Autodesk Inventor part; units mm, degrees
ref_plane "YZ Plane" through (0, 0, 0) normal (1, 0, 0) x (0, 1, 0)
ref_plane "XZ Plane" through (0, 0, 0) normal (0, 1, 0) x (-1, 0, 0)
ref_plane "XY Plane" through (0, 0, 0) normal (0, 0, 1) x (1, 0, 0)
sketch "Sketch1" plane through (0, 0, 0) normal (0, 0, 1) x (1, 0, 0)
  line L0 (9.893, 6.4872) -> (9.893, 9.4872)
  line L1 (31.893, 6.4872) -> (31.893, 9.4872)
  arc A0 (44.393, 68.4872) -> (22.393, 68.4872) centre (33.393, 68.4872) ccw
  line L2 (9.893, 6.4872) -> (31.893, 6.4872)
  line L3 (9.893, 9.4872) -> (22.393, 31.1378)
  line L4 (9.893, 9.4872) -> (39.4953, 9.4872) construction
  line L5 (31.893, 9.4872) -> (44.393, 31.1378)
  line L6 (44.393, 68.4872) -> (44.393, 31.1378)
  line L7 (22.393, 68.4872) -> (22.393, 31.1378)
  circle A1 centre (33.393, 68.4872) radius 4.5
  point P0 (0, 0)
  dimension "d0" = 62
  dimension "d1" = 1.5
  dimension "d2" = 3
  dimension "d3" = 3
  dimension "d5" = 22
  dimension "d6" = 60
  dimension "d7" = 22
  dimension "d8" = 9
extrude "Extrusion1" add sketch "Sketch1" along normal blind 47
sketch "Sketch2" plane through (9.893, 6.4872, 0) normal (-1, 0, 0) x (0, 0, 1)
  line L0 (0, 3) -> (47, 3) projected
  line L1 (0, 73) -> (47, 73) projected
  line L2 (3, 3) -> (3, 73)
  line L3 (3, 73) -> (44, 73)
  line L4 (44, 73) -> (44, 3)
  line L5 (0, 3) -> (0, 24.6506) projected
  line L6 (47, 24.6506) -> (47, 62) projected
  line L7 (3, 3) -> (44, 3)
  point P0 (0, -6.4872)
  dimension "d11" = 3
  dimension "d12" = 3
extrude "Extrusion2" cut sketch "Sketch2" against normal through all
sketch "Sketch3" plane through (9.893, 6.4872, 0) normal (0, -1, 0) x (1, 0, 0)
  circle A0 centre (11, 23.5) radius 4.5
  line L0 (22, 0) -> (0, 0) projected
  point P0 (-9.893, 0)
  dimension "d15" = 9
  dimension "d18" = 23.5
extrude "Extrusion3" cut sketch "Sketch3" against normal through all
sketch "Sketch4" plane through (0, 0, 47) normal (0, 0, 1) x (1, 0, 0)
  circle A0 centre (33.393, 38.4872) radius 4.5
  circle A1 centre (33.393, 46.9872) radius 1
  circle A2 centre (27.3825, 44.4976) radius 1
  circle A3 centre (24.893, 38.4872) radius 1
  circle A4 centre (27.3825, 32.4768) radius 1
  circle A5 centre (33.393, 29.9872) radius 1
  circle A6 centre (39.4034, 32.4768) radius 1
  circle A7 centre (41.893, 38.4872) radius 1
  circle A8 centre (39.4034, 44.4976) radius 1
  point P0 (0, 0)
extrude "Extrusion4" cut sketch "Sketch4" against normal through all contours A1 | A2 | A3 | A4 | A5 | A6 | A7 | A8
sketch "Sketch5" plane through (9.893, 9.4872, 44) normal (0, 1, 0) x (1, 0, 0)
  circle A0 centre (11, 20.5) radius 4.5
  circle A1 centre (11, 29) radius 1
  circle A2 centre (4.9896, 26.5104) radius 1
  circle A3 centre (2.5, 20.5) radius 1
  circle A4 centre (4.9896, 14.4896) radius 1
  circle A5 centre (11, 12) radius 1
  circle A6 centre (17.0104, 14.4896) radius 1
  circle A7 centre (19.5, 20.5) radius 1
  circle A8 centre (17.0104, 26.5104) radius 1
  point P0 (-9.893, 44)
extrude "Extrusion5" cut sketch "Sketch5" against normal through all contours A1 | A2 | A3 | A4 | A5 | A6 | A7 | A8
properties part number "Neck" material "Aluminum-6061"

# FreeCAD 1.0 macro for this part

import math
import FreeCAD as App
import Part
import Sketcher
Q = App.Units.Quantity

doc = App.newDocument("Part")
params = doc.addObject("Spreadsheet::Sheet", "Params")
for row, (alias, value) in enumerate([
    ("sketch1_diameter", "9 mm"),
    ("sketch1_radius", "11 mm"),
    ("sketch1_height", "3 mm"),
    ("pad1_length", "47 mm"),
    ("sketch2_width", "70 mm"),
    ("sketch2_height", "41 mm"),
    ("sketch3_diameter", "9 mm"),
    ("sketch4_diameter", "2 mm"),
    ("sketch5_diameter", "2 mm"),
], start=1):
    params.set(f"A{row}", alias)
    params.set(f"B{row}", "=" + value)
    params.setAlias(f"B{row}", alias)

body = doc.addObject("PartDesign::Body", "Body")

sketch1 = body.newObject("Sketcher::SketchObject", "Sketch")
sketch1.AttachmentSupport = (doc.getObject("XY_Plane"), [""])
sketch1.MapMode = "FlatFace"
sketch1.addGeometry(Part.LineSegment(App.Vector(9.9, 9.5, 0), App.Vector(9.9, 6.5, 0)), False)
sketch1.addGeometry(Part.LineSegment(App.Vector(9.9, 6.5, 0), App.Vector(31.9, 6.5, 0)), False)
sketch1.addGeometry(Part.LineSegment(App.Vector(31.9, 6.5, 0), App.Vector(31.9, 9.5, 0)), False)
sketch1.addGeometry(Part.LineSegment(App.Vector(31.9, 9.5, 0), App.Vector(44.4, 31.1, 0)), False)
sketch1.addGeometry(Part.LineSegment(App.Vector(44.4, 31.1, 0), App.Vector(44.4, 68.5, 0)), False)
sketch1.addGeometry(Part.ArcOfCircle(Part.Circle(App.Vector(33.4, 68.5, 0), App.Vector(0, 0, 1), 11), math.radians(0), math.radians(180)), False)
sketch1.addGeometry(Part.LineSegment(App.Vector(22.4, 68.5, 0), App.Vector(22.4, 31.1, 0)), False)
sketch1.addGeometry(Part.LineSegment(App.Vector(22.4, 31.1, 0), App.Vector(9.9, 9.5, 0)), False)
sketch1.addGeometry(Part.Circle(App.Vector(33.4, 68.5, 0), App.Vector(0, 0, 1), 4.5), False)
sketch1.addConstraint(Sketcher.Constraint("Coincident", 0, 2, 1, 1))
sketch1.addConstraint(Sketcher.Constraint("Coincident", 1, 2, 2, 1))
sketch1.addConstraint(Sketcher.Constraint("Coincident", 2, 2, 3, 1))
sketch1.addConstraint(Sketcher.Constraint("Coincident", 3, 2, 4, 1))
sketch1.addConstraint(Sketcher.Constraint("Tangent", 4, 2, 5, 1))
sketch1.addConstraint(Sketcher.Constraint("Tangent", 5, 2, 6, 1))
sketch1.addConstraint(Sketcher.Constraint("Coincident", 6, 2, 7, 1))
sketch1.addConstraint(Sketcher.Constraint("Coincident", 7, 2, 0, 1))
sketch1.addConstraint(Sketcher.Constraint("Vertical", 0))
sketch1.addConstraint(Sketcher.Constraint("Horizontal", 1))
sketch1.addConstraint(Sketcher.Constraint("Vertical", 2))
sketch1.addConstraint(Sketcher.Constraint("Vertical", 4))
sketch1.addConstraint(Sketcher.Constraint("Vertical", 6))
sketch1.addConstraint(Sketcher.Constraint("Coincident", 8, 3, 5, 3))
sketch1.addConstraint(Sketcher.Constraint("Parallel", 3, 7))
sketch1.addConstraint(Sketcher.Constraint("Horizontal", 3, 2, 6, 2))
sketch1.addConstraint(Sketcher.Constraint("Horizontal", 2, 2, 7, 2))
sketch1.addConstraint(Sketcher.Constraint("Diameter", 8, 9.0))
sketch1.addConstraint(Sketcher.Constraint("Radius", 5, 11.0))
sketch1.addConstraint(Sketcher.Constraint("DistanceY", 0, 2, 0, 1, 3.0))
sketch1.addConstraint(Sketcher.Constraint("Angle", 3, Q("60 deg")))
sketch1.addConstraint(Sketcher.Constraint("DistanceY", 0, 2, 5, 3, 62.0))
sketch1.addConstraint(Sketcher.Constraint("DistanceX", 1, 2, 5, 3, 1.5))
sketch1.addConstraint(Sketcher.Constraint("DistanceX", -1, 1, 5, 3, 33.393))
sketch1.addConstraint(Sketcher.Constraint("DistanceY", -1, 1, 5, 3, 68.4872))
sketch1.setExpression("Constraints[17]", "Params.sketch1_diameter")
sketch1.setExpression("Constraints[18]", "Params.sketch1_radius")
sketch1.setExpression("Constraints[19]", "Params.sketch1_height")
pad1 = body.newObject("PartDesign::Pad", "Pad")
pad1.Profile = sketch1
pad1.setExpression("Length", "Params.pad1_length")

sketch2 = body.newObject("Sketcher::SketchObject", "Sketch001")
sketch2.AttachmentSupport = (doc.getObject("YZ_Plane"), [""])
sketch2.MapMode = "FlatFace"
sketch2.AttachmentOffset = App.Placement(App.Vector(0, 0, 9.893), App.Rotation())
sketch2.addGeometry(Part.LineSegment(App.Vector(79, 3, 0), App.Vector(9, 3, 0)), False)
sketch2.addGeometry(Part.LineSegment(App.Vector(9, 3, 0), App.Vector(9, 44, 0)), False)
sketch2.addGeometry(Part.LineSegment(App.Vector(9, 44, 0), App.Vector(79, 44, 0)), False)
sketch2.addGeometry(Part.LineSegment(App.Vector(79, 44, 0), App.Vector(79, 3, 0)), False)
sketch2.addConstraint(Sketcher.Constraint("Coincident", 0, 2, 1, 1))
sketch2.addConstraint(Sketcher.Constraint("Coincident", 1, 2, 2, 1))
sketch2.addConstraint(Sketcher.Constraint("Coincident", 2, 2, 3, 1))
sketch2.addConstraint(Sketcher.Constraint("Coincident", 3, 2, 0, 1))
sketch2.addConstraint(Sketcher.Constraint("Horizontal", 0))
sketch2.addConstraint(Sketcher.Constraint("Vertical", 1))
sketch2.addConstraint(Sketcher.Constraint("Horizontal", 2))
sketch2.addConstraint(Sketcher.Constraint("Vertical", 3))
sketch2.addConstraint(Sketcher.Constraint("DistanceY", -1, 1, 0, 2, 3.0))
sketch2.addConstraint(Sketcher.Constraint("DistanceX", 0, 2, 0, 1, 70.0))
sketch2.addConstraint(Sketcher.Constraint("DistanceY", 1, 1, 1, 2, 41.0))
sketch2.addConstraint(Sketcher.Constraint("DistanceX", -1, 1, 0, 2, 9.4872))
sketch2.setExpression("Constraints[9]", "Params.sketch2_width")
sketch2.setExpression("Constraints[10]", "Params.sketch2_height")
pocket1 = body.newObject("PartDesign::Pocket", "Pocket")
pocket1.Profile = sketch2
pocket1.Type = "ThroughAll"
pocket1.Reversed = True

sketch3 = body.newObject("Sketcher::SketchObject", "Sketch002")
sketch3.AttachmentSupport = (doc.getObject("XZ_Plane"), [""])
sketch3.MapMode = "FlatFace"
sketch3.AttachmentOffset = App.Placement(App.Vector(0, 0, -6.4872), App.Rotation())
sketch3.addGeometry(Part.Circle(App.Vector(20.9, 23.5, 0), App.Vector(0, 0, 1), 4.5), False)
sketch3.addConstraint(Sketcher.Constraint("Diameter", 0, 9.0))
sketch3.addConstraint(Sketcher.Constraint("DistanceY", -1, 1, 0, 3, 23.5))
sketch3.addConstraint(Sketcher.Constraint("DistanceX", -1, 1, 0, 3, 20.893))
sketch3.setExpression("Constraints[0]", "Params.sketch3_diameter")
pocket2 = body.newObject("PartDesign::Pocket", "Pocket001")
pocket2.Profile = sketch3
pocket2.Type = "ThroughAll"

sketch4 = body.newObject("Sketcher::SketchObject", "Sketch003")
sketch4.AttachmentSupport = (doc.getObject("XY_Plane"), [""])
sketch4.MapMode = "FlatFace"
sketch4.AttachmentOffset = App.Placement(App.Vector(0, 0, 47), App.Rotation())
sketch4.addGeometry(Part.Circle(App.Vector(33.4, 47, 0), App.Vector(0, 0, 1), 1), False)
sketch4.addGeometry(Part.Circle(App.Vector(27.4, 44.5, 0), App.Vector(0, 0, 1), 1), False)
sketch4.addGeometry(Part.Circle(App.Vector(24.9, 38.5, 0), App.Vector(0, 0, 1), 1), False)
sketch4.addGeometry(Part.Circle(App.Vector(27.4, 32.5, 0), App.Vector(0, 0, 1), 1), False)
sketch4.addGeometry(Part.Circle(App.Vector(33.4, 30, 0), App.Vector(0, 0, 1), 1), False)
sketch4.addGeometry(Part.Circle(App.Vector(39.4, 32.5, 0), App.Vector(0, 0, 1), 1), False)
sketch4.addGeometry(Part.Circle(App.Vector(41.9, 38.5, 0), App.Vector(0, 0, 1), 1), False)
sketch4.addGeometry(Part.Circle(App.Vector(39.4, 44.5, 0), App.Vector(0, 0, 1), 1), False)
sketch4.addConstraint(Sketcher.Constraint("Equal", 0, 1))
sketch4.addConstraint(Sketcher.Constraint("Equal", 1, 2))
sketch4.addConstraint(Sketcher.Constraint("Equal", 2, 3))
sketch4.addConstraint(Sketcher.Constraint("Equal", 3, 4))
sketch4.addConstraint(Sketcher.Constraint("Equal", 4, 5))
sketch4.addConstraint(Sketcher.Constraint("Equal", 5, 6))
sketch4.addConstraint(Sketcher.Constraint("Equal", 6, 7))
sketch4.addConstraint(Sketcher.Constraint("Horizontal", 3, 3, 5, 3))
sketch4.addConstraint(Sketcher.Constraint("Horizontal", 2, 3, 6, 3))
sketch4.addConstraint(Sketcher.Constraint("Horizontal", 1, 3, 7, 3))
sketch4.addConstraint(Sketcher.Constraint("Vertical", 1, 3, 3, 3))
sketch4.addConstraint(Sketcher.Constraint("Vertical", 0, 3, 4, 3))
sketch4.addConstraint(Sketcher.Constraint("Vertical", 5, 3, 7, 3))
sketch4.addConstraint(Sketcher.Constraint("Diameter", 0, 2.0))
sketch4.addConstraint(Sketcher.Constraint("DistanceY", 4, 3, 0, 3, 17.0))
sketch4.addConstraint(Sketcher.Constraint("DistanceX", 2, 3, 0, 3, 8.5))
sketch4.addConstraint(Sketcher.Constraint("DistanceY", 2, 3, 0, 3, 8.5))
sketch4.addConstraint(Sketcher.Constraint("DistanceX", 0, 3, 6, 3, 8.5))
sketch4.addConstraint(Sketcher.Constraint("DistanceX", -1, 1, 0, 3, 33.393))
sketch4.addConstraint(Sketcher.Constraint("DistanceX", 3, 3, 5, 3, 12.021))
sketch4.addConstraint(Sketcher.Constraint("DistanceY", -1, 1, 0, 3, 46.9872))
sketch4.addConstraint(Sketcher.Constraint("DistanceX", -1, 1, 1, 3, 27.3825))
sketch4.addConstraint(Sketcher.Constraint("DistanceY", -1, 1, 1, 3, 44.4976))
sketch4.addConstraint(Sketcher.Constraint("DistanceY", -1, 1, 3, 3, 32.4768))
sketch4.setExpression("Constraints[13]", "Params.sketch4_diameter")
pocket3 = body.newObject("PartDesign::Pocket", "Pocket002")
pocket3.Profile = sketch4
pocket3.Type = "ThroughAll"

sketch5 = body.newObject("Sketcher::SketchObject", "Sketch004")
sketch5.AttachmentSupport = (doc.getObject("XZ_Plane"), [""])
sketch5.MapMode = "FlatFace"
sketch5.AttachmentOffset = App.Placement(App.Vector(0, 0, -9.4872), App.Rotation())
sketch5.addGeometry(Part.Circle(App.Vector(20.9, 15, 0), App.Vector(0, 0, 1), 1), False)
sketch5.addGeometry(Part.Circle(App.Vector(14.9, 17.5, 0), App.Vector(0, 0, 1), 1), False)
sketch5.addGeometry(Part.Circle(App.Vector(12.4, 23.5, 0), App.Vector(0, 0, 1), 1), False)
sketch5.addGeometry(Part.Circle(App.Vector(14.9, 29.5, 0), App.Vector(0, 0, 1), 1), False)
sketch5.addGeometry(Part.Circle(App.Vector(20.9, 32, 0), App.Vector(0, 0, 1), 1), False)
sketch5.addGeometry(Part.Circle(App.Vector(26.9, 29.5, 0), App.Vector(0, 0, 1), 1), False)
sketch5.addGeometry(Part.Circle(App.Vector(29.4, 23.5, 0), App.Vector(0, 0, 1), 1), False)
sketch5.addGeometry(Part.Circle(App.Vector(26.9, 17.5, 0), App.Vector(0, 0, 1), 1), False)
sketch5.addConstraint(Sketcher.Constraint("Equal", 0, 1))
sketch5.addConstraint(Sketcher.Constraint("Equal", 1, 2))
sketch5.addConstraint(Sketcher.Constraint("Equal", 2, 3))
sketch5.addConstraint(Sketcher.Constraint("Equal", 3, 4))
sketch5.addConstraint(Sketcher.Constraint("Equal", 4, 5))
sketch5.addConstraint(Sketcher.Constraint("Equal", 5, 6))
sketch5.addConstraint(Sketcher.Constraint("Equal", 6, 7))
sketch5.addConstraint(Sketcher.Constraint("Horizontal", 3, 3, 5, 3))
sketch5.addConstraint(Sketcher.Constraint("Horizontal", 2, 3, 6, 3))
sketch5.addConstraint(Sketcher.Constraint("Horizontal", 1, 3, 7, 3))
sketch5.addConstraint(Sketcher.Constraint("Vertical", 1, 3, 3, 3))
sketch5.addConstraint(Sketcher.Constraint("Vertical", 0, 3, 4, 3))
sketch5.addConstraint(Sketcher.Constraint("Vertical", 5, 3, 7, 3))
sketch5.addConstraint(Sketcher.Constraint("Diameter", 0, 2.0))
sketch5.addConstraint(Sketcher.Constraint("DistanceY", -1, 1, 0, 3, 15.0))
sketch5.addConstraint(Sketcher.Constraint("DistanceY", -1, 1, 4, 3, 32.0))
sketch5.addConstraint(Sketcher.Constraint("DistanceY", -1, 1, 2, 3, 23.5))
sketch5.addConstraint(Sketcher.Constraint("DistanceX", 2, 3, 0, 3, 8.5))
sketch5.addConstraint(Sketcher.Constraint("DistanceX", 0, 3, 6, 3, 8.5))
sketch5.addConstraint(Sketcher.Constraint("DistanceX", -1, 1, 0, 3, 20.893))
sketch5.addConstraint(Sketcher.Constraint("DistanceX", -1, 1, 1, 3, 14.8826))
sketch5.addConstraint(Sketcher.Constraint("DistanceY", -1, 1, 1, 3, 17.4896))
sketch5.addConstraint(Sketcher.Constraint("DistanceY", -1, 1, 3, 3, 29.5104))
sketch5.addConstraint(Sketcher.Constraint("DistanceX", -1, 1, 5, 3, 26.9034))
sketch5.setExpression("Constraints[13]", "Params.sketch5_diameter")
pocket4 = body.newObject("PartDesign::Pocket", "Pocket003")
pocket4.Profile = sketch5
pocket4.Type = "ThroughAll"
pocket4.Reversed = True

doc.recompute()
